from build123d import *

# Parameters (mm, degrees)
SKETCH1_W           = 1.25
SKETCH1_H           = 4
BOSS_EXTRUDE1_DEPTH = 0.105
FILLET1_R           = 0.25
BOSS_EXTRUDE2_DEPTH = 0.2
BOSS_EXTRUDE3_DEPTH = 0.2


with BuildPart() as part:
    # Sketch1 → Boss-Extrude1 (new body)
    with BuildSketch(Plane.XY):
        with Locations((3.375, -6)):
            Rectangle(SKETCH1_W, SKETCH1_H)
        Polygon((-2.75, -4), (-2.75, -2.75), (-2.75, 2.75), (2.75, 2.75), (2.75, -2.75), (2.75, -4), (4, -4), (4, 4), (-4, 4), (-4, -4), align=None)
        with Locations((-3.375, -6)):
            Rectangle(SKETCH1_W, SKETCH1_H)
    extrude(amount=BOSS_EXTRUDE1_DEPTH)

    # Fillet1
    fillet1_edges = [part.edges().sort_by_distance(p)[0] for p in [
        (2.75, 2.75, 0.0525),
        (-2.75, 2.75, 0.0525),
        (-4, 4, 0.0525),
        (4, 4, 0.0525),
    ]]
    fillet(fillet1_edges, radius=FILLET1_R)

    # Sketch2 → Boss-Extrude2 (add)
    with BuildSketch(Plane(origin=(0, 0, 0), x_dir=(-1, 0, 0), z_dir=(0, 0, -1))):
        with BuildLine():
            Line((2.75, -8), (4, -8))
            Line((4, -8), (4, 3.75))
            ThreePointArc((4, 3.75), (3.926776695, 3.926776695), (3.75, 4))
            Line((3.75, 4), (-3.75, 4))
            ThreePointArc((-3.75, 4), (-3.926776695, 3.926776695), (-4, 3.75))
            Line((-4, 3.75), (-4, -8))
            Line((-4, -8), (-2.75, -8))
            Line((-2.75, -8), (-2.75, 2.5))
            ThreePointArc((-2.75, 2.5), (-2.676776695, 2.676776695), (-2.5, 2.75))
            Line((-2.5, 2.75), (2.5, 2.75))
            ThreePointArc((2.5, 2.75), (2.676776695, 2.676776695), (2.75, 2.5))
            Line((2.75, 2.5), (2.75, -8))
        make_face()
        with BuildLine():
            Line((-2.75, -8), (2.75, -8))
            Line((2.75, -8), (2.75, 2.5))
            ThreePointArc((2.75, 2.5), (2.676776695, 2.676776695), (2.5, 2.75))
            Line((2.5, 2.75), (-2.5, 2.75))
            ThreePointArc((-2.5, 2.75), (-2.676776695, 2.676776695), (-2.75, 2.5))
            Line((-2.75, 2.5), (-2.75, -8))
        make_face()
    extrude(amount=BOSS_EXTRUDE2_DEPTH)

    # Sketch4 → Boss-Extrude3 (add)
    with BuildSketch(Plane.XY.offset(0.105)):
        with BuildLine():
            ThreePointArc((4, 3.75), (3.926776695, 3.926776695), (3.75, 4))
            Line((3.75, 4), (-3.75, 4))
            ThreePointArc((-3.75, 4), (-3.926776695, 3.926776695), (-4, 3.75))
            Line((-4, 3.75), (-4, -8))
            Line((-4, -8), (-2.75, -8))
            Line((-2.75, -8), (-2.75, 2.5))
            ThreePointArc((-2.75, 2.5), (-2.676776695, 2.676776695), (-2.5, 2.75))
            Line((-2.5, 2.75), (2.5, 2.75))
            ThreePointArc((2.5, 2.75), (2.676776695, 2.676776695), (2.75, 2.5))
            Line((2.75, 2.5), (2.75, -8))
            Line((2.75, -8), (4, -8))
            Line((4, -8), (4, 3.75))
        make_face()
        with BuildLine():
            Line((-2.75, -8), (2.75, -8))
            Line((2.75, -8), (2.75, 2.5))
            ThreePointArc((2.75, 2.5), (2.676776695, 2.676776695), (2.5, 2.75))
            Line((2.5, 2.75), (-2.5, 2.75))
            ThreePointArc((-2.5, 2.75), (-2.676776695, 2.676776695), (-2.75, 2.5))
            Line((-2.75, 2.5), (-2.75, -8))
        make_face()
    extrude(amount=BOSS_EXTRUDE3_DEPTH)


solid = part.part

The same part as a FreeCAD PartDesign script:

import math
import FreeCAD as App
import Part
import Sketcher
from FreeCAD import Vector
Q = App.Units.Quantity


def edges_at(feature, points):
    """Names of the edges that pass closest to the given points."""
    edges = feature.Shape.Edges
    near = lambda p: min(range(len(edges)), key=lambda i: edges[i].distToShape(Part.Vertex(*p))[0])
    return sorted({f"Edge{near(p) + 1}" for p in points})


def add_polygon(sketch, points):
    """Adds a closed chain of lines whose ends are joined by coincident constraints."""
    first, n = sketch.GeometryCount, len(points)
    for a, b in zip(points, points[1:] + points[:1]):
        sketch.addGeometry(Part.LineSegment(App.Vector(*a, 0), App.Vector(*b, 0)), False)
    for i in range(n):
        sketch.addConstraint(Sketcher.Constraint("Coincident", first + i, 2, first + (i + 1) % n, 1))

doc = App.newDocument("Part")
body = doc.addObject("PartDesign::Body", "Body")

# Sketch on XY plane
sketch1 = doc.addObject("Sketcher::SketchObject", "Sketch")
body.addObject(sketch1)
sketch1.AttachmentSupport = (doc.XY_Plane, [""])
sketch1.MapMode = "FlatFace"
add_polygon(sketch1, [(2.8, -8), (4, -8), (4, 4), (-4, 4), (-4, -8), (-2.8, -8), (-2.8, 2.8), (2.8, 2.8)])  # lines 0-7
sketch1.addConstraint([
    Sketcher.Constraint("Horizontal", 0),
    Sketcher.Constraint("Vertical", 1),
    Sketcher.Constraint("Horizontal", 2),
    Sketcher.Constraint("Vertical", 3),
    Sketcher.Constraint("Horizontal", 4),
    Sketcher.Constraint("Vertical", 5),
    Sketcher.Constraint("Horizontal", 6),
    Sketcher.Constraint("Vertical", 7),
    Sketcher.Constraint("Symmetric", 0, 2, 3, 2, -2),
    Sketcher.Constraint("Equal", 0, 4),
    Sketcher.Constraint("DistanceX", 2, 2, 2, 1, Q("8 mm")),
    Sketcher.Constraint("DistanceY", 1, 1, 1, 2, Q("12 mm")),
    Sketcher.Constraint("DistanceX", 6, 1, 6, 2, Q("5.5 mm")),
    Sketcher.Constraint("DistanceY", 0, 2, -1, 1, Q("8 mm")),
    Sketcher.Constraint("DistanceY", 5, 1, 5, 2, Q("10.75 mm")),
])
pad1 = doc.addObject("PartDesign::Pad", "Pad")
body.addObject(pad1)
pad1.Profile = sketch1
pad1.Length = 0.105
doc.recompute()

fillet = doc.addObject("PartDesign::Fillet", "Fillet")
body.addObject(fillet)
fillet.Base = (pad1, edges_at(pad1, [
    (2.75, 2.75, 0.052),
    (-2.75, 2.75, 0.052),
    (-4, 4, 0.052),
    (4, 4, 0.052),
]))
fillet.Radius = 0.25

# Sketch on XY plane
sketch2 = doc.addObject("Sketcher::SketchObject", "Sketch001")
body.addObject(sketch2)
sketch2.AttachmentSupport = (doc.XY_Plane, [""])
sketch2.MapMode = "FlatFace"
sketch2.addGeometry([
    Part.LineSegment(Vector(-4, -8, 0), Vector(-4, 3.75, 0)),  # 0
    Part.ArcOfCircle(Part.Circle(Vector(-3.75, 3.75, 0), Vector(0, 0, 1), 0.25), math.radians(90), math.radians(180)),  # 1
    Part.LineSegment(Vector(-3.75, 4, 0), Vector(3.75, 4, 0)),  # 2
    Part.ArcOfCircle(Part.Circle(Vector(3.75, 3.75, 0), Vector(0, 0, 1), 0.25), math.radians(0), math.radians(90)),  # 3
    Part.LineSegment(Vector(4, 3.75, 0), Vector(4, -8, 0)),  # 4
    Part.LineSegment(Vector(4, -8, 0), Vector(-4, -8, 0)),  # 5
], False)
sketch2.addConstraint([
    Sketcher.Constraint("Tangent", 0, 2, 1, 2),
    Sketcher.Constraint("Tangent", 1, 1, 2, 1),
    Sketcher.Constraint("Tangent", 2, 2, 3, 2),
    Sketcher.Constraint("Tangent", 3, 1, 4, 1),
    Sketcher.Constraint("Coincident", 4, 2, 5, 1),
    Sketcher.Constraint("Coincident", 5, 2, 0, 1),
    Sketcher.Constraint("Vertical", 0),
    Sketcher.Constraint("Horizontal", 2),
    Sketcher.Constraint("Vertical", 4),
    Sketcher.Constraint("Horizontal", 5),
    Sketcher.Constraint("Equal", 1, 3),
    Sketcher.Constraint("DistanceX", 5, 2, 5, 1, Q("8 mm")),
    Sketcher.Constraint("Radius", 1, Q("0.25 mm")),
    Sketcher.Constraint("DistanceX", 0, 2, -1, 1, Q("4 mm")),
    Sketcher.Constraint("DistanceY", -1, 1, 1, 1, Q("4 mm")),
    Sketcher.Constraint("DistanceY", 4, 2, -1, 1, Q("8 mm")),
])
pad2 = doc.addObject("PartDesign::Pad", "Pad001")
body.addObject(pad2)
pad2.Profile = sketch2
pad2.Length = 0.2
pad2.Reversed = True

# Sketch on XY plane
sketch3 = doc.addObject("Sketcher::SketchObject", "Sketch002")
body.addObject(sketch3)
sketch3.AttachmentSupport = (doc.XY_Plane, [""])
sketch3.MapMode = "FlatFace"
sketch3.AttachmentOffset = App.Placement(Vector(0, 0, 0.105), App.Rotation())
sketch3.addGeometry([
    Part.ArcOfCircle(Part.Circle(Vector(3.75, 3.75, 0), Vector(0, 0, 1), 0.25), math.radians(0), math.radians(90)),  # 0
    Part.LineSegment(Vector(3.75, 4, 0), Vector(-3.75, 4, 0)),  # 1
    Part.ArcOfCircle(Part.Circle(Vector(-3.75, 3.75, 0), Vector(0, 0, 1), 0.25), math.radians(90), math.radians(180)),  # 2
    Part.LineSegment(Vector(-4, 3.75, 0), Vector(-4, -8, 0)),  # 3
    Part.LineSegment(Vector(-4, -8, 0), Vector(4, -8, 0)),  # 4
    Part.LineSegment(Vector(4, -8, 0), Vector(4, 3.75, 0)),  # 5
], False)
sketch3.addConstraint([
    Sketcher.Constraint("Tangent", 0, 2, 1, 1),
    Sketcher.Constraint("Tangent", 1, 2, 2, 1),
    Sketcher.Constraint("Tangent", 2, 2, 3, 1),
    Sketcher.Constraint("Coincident", 3, 2, 4, 1),
    Sketcher.Constraint("Coincident", 4, 2, 5, 1),
    Sketcher.Constraint("Tangent", 5, 2, 0, 1),
    Sketcher.Constraint("Horizontal", 1),
    Sketcher.Constraint("Vertical", 3),
    Sketcher.Constraint("Horizontal", 4),
    Sketcher.Constraint("Vertical", 5),
    Sketcher.Constraint("Equal", 0, 2),
    Sketcher.Constraint("DistanceX", 4, 1, 4, 2, Q("8 mm")),
    Sketcher.Constraint("Radius", 0, Q("0.25 mm")),
    Sketcher.Constraint("DistanceY", -1, 1, 0, 2, Q("4 mm")),
    Sketcher.Constraint("DistanceX", 2, 2, -1, 1, Q("4 mm")),
    Sketcher.Constraint("DistanceY", 3, 2, -1, 1, Q("8 mm")),
])
pad3 = doc.addObject("PartDesign::Pad", "Pad002")
body.addObject(pad3)
pad3.Profile = sketch3
pad3.Length = 0.2

doc.recompute()
